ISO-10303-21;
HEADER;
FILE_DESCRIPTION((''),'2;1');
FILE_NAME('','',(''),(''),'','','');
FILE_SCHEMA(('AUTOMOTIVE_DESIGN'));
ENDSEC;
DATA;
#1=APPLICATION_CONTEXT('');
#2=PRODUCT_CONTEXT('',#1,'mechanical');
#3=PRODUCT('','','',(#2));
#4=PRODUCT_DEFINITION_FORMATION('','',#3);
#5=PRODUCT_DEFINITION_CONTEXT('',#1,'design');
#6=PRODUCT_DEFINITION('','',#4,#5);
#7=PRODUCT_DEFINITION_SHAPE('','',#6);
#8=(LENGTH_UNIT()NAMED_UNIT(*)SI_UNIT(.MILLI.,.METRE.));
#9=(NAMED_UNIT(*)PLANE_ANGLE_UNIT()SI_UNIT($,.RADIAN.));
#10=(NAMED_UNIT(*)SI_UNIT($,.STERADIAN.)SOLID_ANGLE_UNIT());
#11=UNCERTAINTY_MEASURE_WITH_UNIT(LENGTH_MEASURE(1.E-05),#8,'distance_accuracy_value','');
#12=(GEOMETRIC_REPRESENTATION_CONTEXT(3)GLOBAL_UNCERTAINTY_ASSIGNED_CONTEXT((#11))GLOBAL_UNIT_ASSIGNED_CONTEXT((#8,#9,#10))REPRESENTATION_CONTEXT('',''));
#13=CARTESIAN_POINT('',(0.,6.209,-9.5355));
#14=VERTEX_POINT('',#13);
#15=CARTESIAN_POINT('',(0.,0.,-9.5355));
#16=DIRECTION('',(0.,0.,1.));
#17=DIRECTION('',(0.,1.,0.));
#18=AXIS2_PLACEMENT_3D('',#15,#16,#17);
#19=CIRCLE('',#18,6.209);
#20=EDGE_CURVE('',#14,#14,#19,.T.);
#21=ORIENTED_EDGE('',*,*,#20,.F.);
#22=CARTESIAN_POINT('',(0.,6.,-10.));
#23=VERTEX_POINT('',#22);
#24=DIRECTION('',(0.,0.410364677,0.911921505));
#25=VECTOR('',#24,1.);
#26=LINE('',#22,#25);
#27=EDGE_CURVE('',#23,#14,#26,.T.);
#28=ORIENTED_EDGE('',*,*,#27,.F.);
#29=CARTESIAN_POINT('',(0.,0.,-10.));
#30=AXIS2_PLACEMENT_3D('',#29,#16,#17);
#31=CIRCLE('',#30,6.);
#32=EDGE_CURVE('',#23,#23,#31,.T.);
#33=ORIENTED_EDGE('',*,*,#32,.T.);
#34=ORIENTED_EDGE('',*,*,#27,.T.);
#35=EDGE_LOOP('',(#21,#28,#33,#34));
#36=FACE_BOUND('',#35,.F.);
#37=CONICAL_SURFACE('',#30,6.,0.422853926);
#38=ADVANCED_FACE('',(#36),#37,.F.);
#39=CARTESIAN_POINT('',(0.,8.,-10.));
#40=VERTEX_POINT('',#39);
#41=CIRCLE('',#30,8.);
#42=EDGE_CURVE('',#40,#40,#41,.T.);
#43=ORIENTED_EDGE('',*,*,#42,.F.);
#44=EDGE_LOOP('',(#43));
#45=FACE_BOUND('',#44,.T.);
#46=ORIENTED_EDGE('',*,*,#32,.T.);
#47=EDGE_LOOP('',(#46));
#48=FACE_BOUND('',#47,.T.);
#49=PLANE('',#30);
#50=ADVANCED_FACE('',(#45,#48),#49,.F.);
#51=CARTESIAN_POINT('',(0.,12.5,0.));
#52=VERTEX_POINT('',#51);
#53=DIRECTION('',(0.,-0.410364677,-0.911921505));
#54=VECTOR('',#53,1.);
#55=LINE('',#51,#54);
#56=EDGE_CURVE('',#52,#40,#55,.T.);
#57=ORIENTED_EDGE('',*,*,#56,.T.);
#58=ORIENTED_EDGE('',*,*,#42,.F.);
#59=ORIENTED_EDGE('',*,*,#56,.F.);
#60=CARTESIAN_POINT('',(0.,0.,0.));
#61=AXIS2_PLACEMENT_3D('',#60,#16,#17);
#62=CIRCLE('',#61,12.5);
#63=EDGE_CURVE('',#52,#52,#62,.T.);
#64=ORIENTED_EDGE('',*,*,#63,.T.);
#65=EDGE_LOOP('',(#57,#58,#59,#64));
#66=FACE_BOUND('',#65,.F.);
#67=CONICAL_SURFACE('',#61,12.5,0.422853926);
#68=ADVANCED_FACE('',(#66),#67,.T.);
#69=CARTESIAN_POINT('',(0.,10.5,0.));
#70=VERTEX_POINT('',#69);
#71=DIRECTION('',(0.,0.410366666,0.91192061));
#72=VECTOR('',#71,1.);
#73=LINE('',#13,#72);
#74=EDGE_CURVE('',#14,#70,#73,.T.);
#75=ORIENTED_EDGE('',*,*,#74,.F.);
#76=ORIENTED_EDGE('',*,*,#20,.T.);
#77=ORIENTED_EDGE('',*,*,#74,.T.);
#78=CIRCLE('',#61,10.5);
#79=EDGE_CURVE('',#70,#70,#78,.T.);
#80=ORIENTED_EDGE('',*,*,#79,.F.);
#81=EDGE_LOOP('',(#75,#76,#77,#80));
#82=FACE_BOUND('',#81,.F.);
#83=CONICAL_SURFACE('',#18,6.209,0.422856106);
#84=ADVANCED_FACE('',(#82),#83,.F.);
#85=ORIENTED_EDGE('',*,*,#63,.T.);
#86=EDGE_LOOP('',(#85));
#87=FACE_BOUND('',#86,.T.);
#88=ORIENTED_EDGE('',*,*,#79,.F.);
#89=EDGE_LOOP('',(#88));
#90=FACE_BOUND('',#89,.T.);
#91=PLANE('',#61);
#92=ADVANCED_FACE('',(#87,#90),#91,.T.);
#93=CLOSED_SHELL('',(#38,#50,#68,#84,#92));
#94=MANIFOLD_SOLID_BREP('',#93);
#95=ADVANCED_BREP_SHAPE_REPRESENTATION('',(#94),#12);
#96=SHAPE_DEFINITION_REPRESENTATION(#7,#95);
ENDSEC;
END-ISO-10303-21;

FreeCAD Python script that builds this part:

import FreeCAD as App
import Part
import Sketcher
from FreeCAD import Vector

doc = App.newDocument("Part")
body = doc.addObject("PartDesign::Body", "Body")

sketch1 = body.newObject("Sketcher::SketchObject", "Sketch")
sketch1.AttachmentSupport = (doc.getObject("YZ_Plane"), [""])
sketch1.MapMode = "FlatFace"
sketch1.addGeometry([
    Part.LineSegment(Vector(8, -10, 0), Vector(12.5, 0, 0)),
    Part.LineSegment(Vector(12.5, 0, 0), Vector(10.5, 0, 0)),
    Part.LineSegment(Vector(10.5, 0, 0), Vector(6.2, -9.5, 0)),
    Part.LineSegment(Vector(6.2, -9.5, 0), Vector(6, -10, 0)),
    Part.LineSegment(Vector(6, -10, 0), Vector(8, -10, 0)),
], False)
sketch1.addConstraint([
    Sketcher.Constraint("Coincident", 0, 2, 1, 1),
    Sketcher.Constraint("Coincident", 1, 2, 2, 1),
    Sketcher.Constraint("Coincident", 2, 2, 3, 1),
    Sketcher.Constraint("Coincident", 3, 2, 4, 1),
    Sketcher.Constraint("Coincident", 4, 2, 0, 1),
    Sketcher.Constraint("Horizontal", 1),
    Sketcher.Constraint("Horizontal", 4),
    Sketcher.Constraint("PointOnObject", 0, 2, -1),
    Sketcher.Constraint("Parallel", 0, 2),
    Sketcher.Constraint("Parallel", 2, 3),
    Sketcher.Constraint("DistanceX", 1, 2, 1, 1, 2.0),
    Sketcher.Constraint("DistanceY", 3, 2, -1, 1, 10.0),
    Sketcher.Constraint("DistanceX", -1, 1, 3, 2, 6.0),
    Sketcher.Constraint("DistanceX", -1, 1, 0, 2, 12.5),
    Sketcher.Constraint("DistanceX", -1, 1, 2, 2, 6.209),
])
revolution = body.newObject("PartDesign::Revolution", "Revolution")
revolution.Profile = sketch1
revolution.ReferenceAxis = (sketch1, ["V_Axis"])
revolution.Angle = 360

doc.recompute()
